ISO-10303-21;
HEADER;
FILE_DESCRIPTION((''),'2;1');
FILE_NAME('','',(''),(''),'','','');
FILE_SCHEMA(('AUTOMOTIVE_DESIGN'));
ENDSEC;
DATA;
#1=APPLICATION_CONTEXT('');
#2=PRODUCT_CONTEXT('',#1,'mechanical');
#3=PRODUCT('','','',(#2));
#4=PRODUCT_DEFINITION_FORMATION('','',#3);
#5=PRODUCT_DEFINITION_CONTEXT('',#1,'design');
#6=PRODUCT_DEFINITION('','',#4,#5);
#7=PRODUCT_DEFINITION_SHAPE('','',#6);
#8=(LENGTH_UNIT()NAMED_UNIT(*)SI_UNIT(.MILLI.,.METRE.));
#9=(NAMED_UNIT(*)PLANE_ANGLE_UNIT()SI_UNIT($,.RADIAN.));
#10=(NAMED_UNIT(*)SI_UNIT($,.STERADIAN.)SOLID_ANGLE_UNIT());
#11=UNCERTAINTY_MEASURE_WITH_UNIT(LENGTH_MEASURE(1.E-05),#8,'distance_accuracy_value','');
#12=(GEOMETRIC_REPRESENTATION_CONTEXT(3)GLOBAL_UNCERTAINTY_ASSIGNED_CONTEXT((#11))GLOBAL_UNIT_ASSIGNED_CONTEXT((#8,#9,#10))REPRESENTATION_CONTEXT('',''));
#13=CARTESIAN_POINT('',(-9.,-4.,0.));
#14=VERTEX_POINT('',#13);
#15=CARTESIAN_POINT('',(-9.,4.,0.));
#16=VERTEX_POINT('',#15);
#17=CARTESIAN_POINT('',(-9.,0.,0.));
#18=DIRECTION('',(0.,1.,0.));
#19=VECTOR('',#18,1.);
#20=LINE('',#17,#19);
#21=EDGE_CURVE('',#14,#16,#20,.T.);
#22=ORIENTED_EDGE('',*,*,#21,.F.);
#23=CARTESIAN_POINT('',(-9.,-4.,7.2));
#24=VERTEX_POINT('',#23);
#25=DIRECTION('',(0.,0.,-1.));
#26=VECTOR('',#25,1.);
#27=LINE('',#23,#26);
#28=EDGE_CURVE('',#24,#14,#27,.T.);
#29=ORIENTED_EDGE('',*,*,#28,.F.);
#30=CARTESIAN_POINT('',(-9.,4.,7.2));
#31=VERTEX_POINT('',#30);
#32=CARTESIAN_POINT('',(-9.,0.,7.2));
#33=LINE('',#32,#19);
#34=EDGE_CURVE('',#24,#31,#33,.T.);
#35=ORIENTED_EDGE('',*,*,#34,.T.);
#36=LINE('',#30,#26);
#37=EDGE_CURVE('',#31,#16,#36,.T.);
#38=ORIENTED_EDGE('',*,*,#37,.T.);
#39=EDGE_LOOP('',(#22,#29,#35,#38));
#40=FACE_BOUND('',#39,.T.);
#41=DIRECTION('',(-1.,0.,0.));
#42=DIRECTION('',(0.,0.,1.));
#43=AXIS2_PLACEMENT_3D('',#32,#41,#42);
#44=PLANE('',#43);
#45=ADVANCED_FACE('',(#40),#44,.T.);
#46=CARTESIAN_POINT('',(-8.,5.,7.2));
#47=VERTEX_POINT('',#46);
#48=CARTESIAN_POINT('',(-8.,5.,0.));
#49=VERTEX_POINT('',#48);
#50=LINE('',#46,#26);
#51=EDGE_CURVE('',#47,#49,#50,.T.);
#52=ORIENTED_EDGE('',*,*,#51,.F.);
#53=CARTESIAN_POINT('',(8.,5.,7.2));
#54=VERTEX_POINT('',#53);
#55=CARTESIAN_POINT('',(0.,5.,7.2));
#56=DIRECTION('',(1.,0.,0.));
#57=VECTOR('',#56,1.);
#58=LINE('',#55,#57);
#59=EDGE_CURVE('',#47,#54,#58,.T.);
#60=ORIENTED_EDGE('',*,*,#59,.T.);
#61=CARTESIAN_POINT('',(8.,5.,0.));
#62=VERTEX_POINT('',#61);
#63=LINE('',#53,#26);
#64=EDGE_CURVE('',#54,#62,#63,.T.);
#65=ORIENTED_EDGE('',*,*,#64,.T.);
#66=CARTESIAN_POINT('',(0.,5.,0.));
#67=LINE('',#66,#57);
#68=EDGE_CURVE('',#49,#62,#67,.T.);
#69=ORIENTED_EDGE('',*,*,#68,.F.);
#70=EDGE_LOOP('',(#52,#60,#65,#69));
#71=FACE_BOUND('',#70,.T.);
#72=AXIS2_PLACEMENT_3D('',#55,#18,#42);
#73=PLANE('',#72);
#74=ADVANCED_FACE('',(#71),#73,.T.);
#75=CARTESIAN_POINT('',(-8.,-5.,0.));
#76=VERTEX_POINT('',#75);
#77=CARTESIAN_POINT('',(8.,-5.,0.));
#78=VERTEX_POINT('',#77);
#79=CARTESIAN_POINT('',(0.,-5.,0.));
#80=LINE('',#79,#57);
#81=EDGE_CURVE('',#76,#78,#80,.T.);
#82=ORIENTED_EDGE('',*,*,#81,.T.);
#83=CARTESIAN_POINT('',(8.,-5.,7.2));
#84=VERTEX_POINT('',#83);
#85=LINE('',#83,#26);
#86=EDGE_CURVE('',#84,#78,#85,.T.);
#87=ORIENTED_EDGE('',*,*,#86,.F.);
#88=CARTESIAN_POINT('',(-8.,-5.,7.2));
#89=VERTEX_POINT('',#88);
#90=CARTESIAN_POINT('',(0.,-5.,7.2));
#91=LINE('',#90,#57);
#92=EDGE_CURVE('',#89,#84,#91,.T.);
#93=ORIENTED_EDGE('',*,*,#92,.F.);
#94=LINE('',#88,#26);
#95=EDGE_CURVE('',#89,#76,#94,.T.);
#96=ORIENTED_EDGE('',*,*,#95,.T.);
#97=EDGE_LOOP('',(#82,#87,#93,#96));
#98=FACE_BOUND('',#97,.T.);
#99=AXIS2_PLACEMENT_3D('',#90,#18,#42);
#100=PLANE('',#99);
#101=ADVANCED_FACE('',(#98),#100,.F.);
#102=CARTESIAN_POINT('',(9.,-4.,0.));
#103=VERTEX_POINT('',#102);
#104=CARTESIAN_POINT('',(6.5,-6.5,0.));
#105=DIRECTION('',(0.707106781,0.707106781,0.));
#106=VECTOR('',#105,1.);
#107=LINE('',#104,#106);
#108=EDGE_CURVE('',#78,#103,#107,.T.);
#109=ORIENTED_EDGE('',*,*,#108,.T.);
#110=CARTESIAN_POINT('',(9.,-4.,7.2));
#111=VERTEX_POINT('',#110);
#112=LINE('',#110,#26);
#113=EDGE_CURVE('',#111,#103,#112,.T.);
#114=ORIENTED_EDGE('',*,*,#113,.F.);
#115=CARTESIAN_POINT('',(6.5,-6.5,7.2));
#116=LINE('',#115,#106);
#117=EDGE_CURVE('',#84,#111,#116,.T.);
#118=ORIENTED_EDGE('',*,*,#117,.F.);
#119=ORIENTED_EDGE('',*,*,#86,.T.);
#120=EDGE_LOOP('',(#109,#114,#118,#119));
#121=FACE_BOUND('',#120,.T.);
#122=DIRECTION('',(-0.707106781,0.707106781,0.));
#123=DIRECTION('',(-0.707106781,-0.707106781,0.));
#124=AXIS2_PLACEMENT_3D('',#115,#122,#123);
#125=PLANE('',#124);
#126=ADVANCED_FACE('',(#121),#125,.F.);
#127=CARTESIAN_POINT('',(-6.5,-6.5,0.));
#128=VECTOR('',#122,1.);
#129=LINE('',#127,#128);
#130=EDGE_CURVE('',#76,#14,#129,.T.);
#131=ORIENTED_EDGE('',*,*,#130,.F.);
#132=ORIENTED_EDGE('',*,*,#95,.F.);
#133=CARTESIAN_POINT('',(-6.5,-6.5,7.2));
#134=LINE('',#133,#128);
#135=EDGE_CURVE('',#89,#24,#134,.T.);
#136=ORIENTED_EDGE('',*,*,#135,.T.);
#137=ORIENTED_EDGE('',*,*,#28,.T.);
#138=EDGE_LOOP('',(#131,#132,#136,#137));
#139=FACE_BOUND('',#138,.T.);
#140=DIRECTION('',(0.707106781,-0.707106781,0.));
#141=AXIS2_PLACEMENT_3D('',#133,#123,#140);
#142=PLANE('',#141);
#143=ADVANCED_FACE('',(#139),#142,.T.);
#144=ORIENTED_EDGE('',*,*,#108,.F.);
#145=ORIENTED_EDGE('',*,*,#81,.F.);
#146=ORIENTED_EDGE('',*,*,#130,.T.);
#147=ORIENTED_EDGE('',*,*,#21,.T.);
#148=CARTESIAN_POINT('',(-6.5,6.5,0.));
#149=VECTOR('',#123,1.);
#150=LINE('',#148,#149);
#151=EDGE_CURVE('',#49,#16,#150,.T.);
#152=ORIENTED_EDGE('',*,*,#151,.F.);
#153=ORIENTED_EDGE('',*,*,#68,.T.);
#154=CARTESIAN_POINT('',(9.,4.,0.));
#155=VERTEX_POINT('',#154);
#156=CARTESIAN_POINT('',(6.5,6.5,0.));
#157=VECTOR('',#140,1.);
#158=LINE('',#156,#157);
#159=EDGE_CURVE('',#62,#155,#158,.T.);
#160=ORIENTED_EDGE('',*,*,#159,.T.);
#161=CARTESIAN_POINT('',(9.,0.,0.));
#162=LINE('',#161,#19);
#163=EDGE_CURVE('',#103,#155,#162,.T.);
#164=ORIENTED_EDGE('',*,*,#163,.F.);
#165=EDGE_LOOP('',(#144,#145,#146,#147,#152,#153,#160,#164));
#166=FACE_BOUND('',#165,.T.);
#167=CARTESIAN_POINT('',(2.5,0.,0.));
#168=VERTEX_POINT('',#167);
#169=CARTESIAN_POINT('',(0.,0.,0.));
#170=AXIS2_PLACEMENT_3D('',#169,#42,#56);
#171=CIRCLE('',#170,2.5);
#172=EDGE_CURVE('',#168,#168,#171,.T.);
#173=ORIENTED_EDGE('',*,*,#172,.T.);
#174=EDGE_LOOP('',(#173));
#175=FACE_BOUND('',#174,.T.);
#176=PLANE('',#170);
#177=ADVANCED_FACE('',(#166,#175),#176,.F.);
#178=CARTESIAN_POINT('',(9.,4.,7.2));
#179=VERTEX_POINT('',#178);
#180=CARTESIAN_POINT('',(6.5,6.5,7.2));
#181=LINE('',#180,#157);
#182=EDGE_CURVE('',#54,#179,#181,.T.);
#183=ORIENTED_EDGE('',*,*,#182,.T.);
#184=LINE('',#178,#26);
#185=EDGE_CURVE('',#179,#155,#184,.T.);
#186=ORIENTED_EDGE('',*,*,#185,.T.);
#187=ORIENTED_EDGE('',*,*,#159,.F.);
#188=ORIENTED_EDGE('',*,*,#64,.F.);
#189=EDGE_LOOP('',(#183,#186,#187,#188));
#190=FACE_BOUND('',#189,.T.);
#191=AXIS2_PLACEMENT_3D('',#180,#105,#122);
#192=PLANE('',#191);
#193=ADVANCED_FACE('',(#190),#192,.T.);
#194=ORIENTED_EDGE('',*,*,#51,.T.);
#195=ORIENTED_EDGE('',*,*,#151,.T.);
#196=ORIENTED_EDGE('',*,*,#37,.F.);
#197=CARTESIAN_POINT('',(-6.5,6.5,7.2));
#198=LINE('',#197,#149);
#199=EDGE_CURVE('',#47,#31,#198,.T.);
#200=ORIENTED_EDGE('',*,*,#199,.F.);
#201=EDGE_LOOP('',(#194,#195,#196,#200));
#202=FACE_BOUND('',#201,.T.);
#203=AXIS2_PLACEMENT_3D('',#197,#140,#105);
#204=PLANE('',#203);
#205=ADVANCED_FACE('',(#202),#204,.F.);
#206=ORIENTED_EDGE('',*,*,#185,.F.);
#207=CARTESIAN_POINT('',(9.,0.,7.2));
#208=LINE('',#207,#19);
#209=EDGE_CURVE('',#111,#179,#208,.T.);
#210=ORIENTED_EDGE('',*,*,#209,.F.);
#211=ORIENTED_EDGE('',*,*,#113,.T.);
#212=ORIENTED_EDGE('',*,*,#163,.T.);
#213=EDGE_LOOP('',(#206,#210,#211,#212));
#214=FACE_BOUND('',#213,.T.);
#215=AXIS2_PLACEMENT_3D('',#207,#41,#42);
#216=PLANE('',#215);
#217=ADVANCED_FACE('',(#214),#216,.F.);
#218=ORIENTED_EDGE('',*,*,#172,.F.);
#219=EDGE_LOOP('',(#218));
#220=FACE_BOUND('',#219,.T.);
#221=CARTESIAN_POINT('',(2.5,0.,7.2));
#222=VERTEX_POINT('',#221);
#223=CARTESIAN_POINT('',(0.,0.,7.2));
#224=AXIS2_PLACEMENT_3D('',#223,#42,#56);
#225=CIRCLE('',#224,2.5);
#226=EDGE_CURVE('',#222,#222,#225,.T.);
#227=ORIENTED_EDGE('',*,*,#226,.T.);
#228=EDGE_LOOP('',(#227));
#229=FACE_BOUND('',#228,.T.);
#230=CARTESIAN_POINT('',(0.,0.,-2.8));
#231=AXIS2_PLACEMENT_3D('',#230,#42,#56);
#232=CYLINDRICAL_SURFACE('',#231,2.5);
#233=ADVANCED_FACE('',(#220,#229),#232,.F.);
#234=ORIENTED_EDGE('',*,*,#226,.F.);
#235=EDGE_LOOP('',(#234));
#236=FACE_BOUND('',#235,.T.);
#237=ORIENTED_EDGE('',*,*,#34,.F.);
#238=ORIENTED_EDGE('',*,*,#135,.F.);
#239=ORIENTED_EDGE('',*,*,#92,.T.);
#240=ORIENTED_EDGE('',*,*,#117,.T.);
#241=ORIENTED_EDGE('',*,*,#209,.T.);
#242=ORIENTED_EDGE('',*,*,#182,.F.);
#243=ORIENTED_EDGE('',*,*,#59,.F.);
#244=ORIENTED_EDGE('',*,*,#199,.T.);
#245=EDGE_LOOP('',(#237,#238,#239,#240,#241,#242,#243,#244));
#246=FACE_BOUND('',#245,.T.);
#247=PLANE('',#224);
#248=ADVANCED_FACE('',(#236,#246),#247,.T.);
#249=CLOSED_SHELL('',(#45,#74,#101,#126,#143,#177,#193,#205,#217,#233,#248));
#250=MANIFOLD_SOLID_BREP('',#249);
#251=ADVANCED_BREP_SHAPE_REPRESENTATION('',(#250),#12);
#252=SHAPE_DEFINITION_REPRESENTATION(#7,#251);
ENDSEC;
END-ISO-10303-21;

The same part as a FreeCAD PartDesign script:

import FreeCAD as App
import Part
import Sketcher
from FreeCAD import Vector
Q = App.Units.Quantity


def add_polygon(sketch, points):
    """Adds a closed chain of lines whose ends are joined by coincident constraints."""
    first, n = sketch.GeometryCount, len(points)
    for a, b in zip(points, points[1:] + points[:1]):
        sketch.addGeometry(Part.LineSegment(App.Vector(*a, 0), App.Vector(*b, 0)), False)
    for i in range(n):
        sketch.addConstraint(Sketcher.Constraint("Coincident", first + i, 2, first + (i + 1) % n, 1))

doc = App.newDocument("Part")
body = doc.addObject("PartDesign::Body", "Body")

# Sketch on XY plane
sketch1 = body.newObject("Sketcher::SketchObject", "Sketch")
sketch1.AttachmentSupport = (doc.getObject("XY_Plane"), [""])
sketch1.MapMode = "FlatFace"
add_polygon(sketch1, [(8, 5), (-8, 5), (-9, 4), (-9, -4), (-8, -5), (8, -5), (9, -4), (9, 4)])  # lines 0-7
sketch1.addConstraint([
    Sketcher.Constraint("Horizontal", 0),
    Sketcher.Constraint("Vertical", 2),
    Sketcher.Constraint("Horizontal", 4),
    Sketcher.Constraint("Vertical", 6),
    Sketcher.Constraint("Symmetric", 0, 2, 4, 2, -1, 1),
    Sketcher.Constraint("Symmetric", 1, 2, 5, 2, -1, 1),
    Sketcher.Constraint("Perpendicular", 1, 3),
    Sketcher.Constraint("Perpendicular", 5, 7),
    Sketcher.Constraint("Horizontal", 2, 2, 5, 2),
    Sketcher.Constraint("Horizontal", 1, 2, 6, 2),
    Sketcher.Constraint("Vertical", 0, 2, 3, 2),
    Sketcher.Constraint("DistanceX", 0, 2, 0, 1, Q("16 mm")),
    Sketcher.Constraint("DistanceY", 2, 2, 2, 1, Q("8 mm")),
    Sketcher.Constraint("DistanceY", -1, 1, 0, 2, Q("5 mm")),
])
pad1 = body.newObject("PartDesign::Pad", "Pad")
pad1.Profile = sketch1
pad1.Length = 7.2

# Sketch on XY plane
sketch2 = body.newObject("Sketcher::SketchObject", "Sketch001")
sketch2.AttachmentSupport = (doc.getObject("XY_Plane"), [""])
sketch2.MapMode = "FlatFace"
sketch2.AttachmentOffset = App.Placement(Vector(0, 0, 7.2), App.Rotation())
sketch2.addGeometry(Part.Circle(Vector(0, 0, 0), Vector(0, 0, 1), 2.5), False)
sketch2.addConstraint([
    Sketcher.Constraint("Coincident", 0, 3, -1, 1),
    Sketcher.Constraint("Diameter", 0, Q("5 mm")),
])
pocket1 = body.newObject("PartDesign::Pocket", "Pocket")
pocket1.Profile = sketch2
pocket1.Length = 10

doc.recompute()
